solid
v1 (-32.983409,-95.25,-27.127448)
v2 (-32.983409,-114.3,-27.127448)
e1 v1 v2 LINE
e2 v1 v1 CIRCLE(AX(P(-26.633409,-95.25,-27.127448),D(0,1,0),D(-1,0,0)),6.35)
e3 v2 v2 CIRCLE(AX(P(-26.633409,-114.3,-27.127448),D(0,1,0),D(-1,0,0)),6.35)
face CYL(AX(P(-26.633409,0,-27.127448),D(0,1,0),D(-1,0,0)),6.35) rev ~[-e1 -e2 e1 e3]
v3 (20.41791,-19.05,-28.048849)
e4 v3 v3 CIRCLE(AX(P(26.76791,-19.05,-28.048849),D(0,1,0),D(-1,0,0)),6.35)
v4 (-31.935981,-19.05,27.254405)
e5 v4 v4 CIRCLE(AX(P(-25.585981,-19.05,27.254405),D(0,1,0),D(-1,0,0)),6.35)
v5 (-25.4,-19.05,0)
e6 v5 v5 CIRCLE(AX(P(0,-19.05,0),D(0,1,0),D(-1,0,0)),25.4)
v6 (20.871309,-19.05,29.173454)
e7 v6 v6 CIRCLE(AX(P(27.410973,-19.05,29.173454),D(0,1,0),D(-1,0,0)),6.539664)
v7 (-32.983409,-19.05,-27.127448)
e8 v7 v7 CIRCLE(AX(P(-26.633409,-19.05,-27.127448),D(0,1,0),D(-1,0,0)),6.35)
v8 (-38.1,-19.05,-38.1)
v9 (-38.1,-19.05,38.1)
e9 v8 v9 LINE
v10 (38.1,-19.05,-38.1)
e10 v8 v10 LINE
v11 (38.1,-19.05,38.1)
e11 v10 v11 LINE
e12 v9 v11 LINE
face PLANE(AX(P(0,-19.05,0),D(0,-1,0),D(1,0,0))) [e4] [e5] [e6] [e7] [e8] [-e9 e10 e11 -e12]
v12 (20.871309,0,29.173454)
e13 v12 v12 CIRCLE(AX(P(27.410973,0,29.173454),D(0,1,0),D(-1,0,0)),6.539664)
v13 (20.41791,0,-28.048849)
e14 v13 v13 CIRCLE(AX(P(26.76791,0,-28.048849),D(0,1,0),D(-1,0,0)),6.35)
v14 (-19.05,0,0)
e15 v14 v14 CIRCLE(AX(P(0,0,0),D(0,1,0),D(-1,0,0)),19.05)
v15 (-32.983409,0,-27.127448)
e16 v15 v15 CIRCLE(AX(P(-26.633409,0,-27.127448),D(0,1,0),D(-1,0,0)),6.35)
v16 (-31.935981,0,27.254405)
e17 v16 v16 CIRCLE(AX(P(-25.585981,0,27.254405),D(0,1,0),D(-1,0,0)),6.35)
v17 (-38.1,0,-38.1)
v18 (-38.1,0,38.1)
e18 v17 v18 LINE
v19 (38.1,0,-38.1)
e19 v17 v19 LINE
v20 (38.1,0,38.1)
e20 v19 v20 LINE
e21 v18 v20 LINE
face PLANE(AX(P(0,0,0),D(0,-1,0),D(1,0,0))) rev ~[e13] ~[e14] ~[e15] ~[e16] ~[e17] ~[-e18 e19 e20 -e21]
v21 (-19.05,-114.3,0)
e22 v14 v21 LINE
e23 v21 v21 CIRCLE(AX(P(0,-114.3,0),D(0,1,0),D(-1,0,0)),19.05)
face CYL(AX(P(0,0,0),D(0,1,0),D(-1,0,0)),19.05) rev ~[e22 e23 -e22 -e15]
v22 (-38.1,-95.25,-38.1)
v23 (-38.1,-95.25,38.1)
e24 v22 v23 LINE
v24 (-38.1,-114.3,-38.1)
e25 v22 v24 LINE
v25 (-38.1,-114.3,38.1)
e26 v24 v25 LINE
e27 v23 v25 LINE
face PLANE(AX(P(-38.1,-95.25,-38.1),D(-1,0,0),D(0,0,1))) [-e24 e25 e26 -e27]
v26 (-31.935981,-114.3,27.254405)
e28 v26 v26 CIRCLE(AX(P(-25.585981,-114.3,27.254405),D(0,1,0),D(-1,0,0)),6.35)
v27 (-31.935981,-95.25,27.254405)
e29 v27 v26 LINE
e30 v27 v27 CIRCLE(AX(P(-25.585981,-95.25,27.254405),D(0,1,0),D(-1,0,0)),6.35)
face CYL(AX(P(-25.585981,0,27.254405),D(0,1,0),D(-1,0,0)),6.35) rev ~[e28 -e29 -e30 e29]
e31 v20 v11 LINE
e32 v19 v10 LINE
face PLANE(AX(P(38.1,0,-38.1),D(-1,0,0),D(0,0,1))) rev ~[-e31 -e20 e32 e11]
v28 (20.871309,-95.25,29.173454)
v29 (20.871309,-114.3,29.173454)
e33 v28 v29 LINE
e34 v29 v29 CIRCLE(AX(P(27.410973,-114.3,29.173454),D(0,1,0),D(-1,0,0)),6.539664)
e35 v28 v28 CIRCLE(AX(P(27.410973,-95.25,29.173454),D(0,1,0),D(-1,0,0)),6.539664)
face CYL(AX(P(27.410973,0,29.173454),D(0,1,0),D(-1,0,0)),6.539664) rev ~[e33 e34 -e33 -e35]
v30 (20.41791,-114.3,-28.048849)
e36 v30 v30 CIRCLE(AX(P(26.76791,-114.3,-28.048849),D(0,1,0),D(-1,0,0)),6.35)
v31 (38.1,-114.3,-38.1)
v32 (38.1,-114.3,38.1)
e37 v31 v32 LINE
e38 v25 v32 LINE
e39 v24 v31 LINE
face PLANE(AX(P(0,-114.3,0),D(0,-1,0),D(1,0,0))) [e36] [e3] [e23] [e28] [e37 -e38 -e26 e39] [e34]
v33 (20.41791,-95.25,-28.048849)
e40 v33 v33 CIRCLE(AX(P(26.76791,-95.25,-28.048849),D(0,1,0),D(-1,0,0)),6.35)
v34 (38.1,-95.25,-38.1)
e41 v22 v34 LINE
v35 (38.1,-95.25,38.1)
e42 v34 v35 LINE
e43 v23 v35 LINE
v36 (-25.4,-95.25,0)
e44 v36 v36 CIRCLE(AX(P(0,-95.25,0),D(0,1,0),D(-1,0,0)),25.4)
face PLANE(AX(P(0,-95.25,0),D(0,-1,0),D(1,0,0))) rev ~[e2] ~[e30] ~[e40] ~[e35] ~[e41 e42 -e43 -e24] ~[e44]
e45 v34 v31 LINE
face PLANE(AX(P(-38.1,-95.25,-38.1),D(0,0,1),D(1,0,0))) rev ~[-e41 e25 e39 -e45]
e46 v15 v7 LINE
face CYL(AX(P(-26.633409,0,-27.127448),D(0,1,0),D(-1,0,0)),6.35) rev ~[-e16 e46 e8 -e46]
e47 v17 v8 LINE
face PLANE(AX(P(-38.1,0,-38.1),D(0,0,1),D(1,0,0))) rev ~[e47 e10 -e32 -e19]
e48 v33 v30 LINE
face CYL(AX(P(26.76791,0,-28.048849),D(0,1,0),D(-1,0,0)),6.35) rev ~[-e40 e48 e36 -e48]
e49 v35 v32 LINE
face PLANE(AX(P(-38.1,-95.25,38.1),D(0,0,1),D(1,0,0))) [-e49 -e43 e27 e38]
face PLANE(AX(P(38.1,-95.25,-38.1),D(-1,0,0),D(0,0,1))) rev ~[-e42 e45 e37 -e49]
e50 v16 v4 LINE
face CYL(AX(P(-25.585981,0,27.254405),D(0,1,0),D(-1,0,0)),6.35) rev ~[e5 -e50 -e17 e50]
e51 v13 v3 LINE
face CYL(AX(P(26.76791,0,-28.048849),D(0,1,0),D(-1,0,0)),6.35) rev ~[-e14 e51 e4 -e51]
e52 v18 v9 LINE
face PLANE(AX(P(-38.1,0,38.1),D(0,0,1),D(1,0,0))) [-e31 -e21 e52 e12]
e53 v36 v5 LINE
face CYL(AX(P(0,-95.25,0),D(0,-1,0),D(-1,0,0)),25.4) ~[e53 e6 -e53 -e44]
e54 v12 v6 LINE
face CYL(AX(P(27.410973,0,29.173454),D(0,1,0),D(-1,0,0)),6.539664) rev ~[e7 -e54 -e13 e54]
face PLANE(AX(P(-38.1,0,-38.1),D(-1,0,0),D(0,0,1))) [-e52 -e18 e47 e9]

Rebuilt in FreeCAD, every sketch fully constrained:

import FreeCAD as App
import Part
import Sketcher
from FreeCAD import Vector
Q = App.Units.Quantity


def add_polygon(sketch, points):
    """Adds a closed chain of lines whose ends are joined by coincident constraints."""
    first, n = sketch.GeometryCount, len(points)
    for a, b in zip(points, points[1:] + points[:1]):
        sketch.addGeometry(Part.LineSegment(App.Vector(*a, 0), App.Vector(*b, 0)), False)
    for i in range(n):
        sketch.addConstraint(Sketcher.Constraint("Coincident", first + i, 2, first + (i + 1) % n, 1))

doc = App.newDocument("Part")
params = doc.addObject("Spreadsheet::Sheet", "Params")
for row, (alias, value) in enumerate([
    ("sketch1_width", "3 in"),
    ("pad1_length", "0.75 in"),
    ("sketch2_diameter", "1.5 in"),
    ("pad2_length", "1 in"),
    ("sketch3_diameter", "1.5 in"),
    ("pad3_length", "2 in"),
    ("sketch4_width", "3 in"),
    ("pad4_length", "0.75 in"),
    ("sketch5_diameter", "2 in"),
    ("pad5_length", "3 in"),
    ("sketch6_diameter", "1.5 in"),
    ("pocket1_length", "4.5 in"),
    ("sketch7_diameter", "0.5 in"),
    ("pocket2_length", "4.5 in"),
    ("sketch8_diameter", "0.5 in"),
    ("pocket3_length", "5 in"),
], start=1):
    params.set(f"A{row}", alias)
    params.set(f"B{row}", "=" + value)
    params.setAlias(f"B{row}", alias)

body = doc.addObject("PartDesign::Body", "Body")

# Sketch on XZ plane
sketch1 = doc.addObject("Sketcher::SketchObject", "Sketch")
body.addObject(sketch1)
sketch1.AttachmentSupport = (doc.XZ_Plane, [""])
sketch1.MapMode = "FlatFace"
add_polygon(sketch1, [(-38.1, 38.1), (-38.1, -38.1), (38.1, -38.1), (38.1, 38.1)])  # lines 0-3
sketch1.addConstraint([
    Sketcher.Constraint("Vertical", 0),
    Sketcher.Constraint("Horizontal", 1),
    Sketcher.Constraint("Vertical", 2),
    Sketcher.Constraint("Horizontal", 3),
    Sketcher.Constraint("Symmetric", 0, 2, 2, 2, -1, 1),
    Sketcher.Constraint("Equal", 3, 0),
    Sketcher.Constraint("DistanceX", 1, 1, 1, 2, Q("3 in")),
])
sketch1.setExpression("Constraints[10]", "Params.sketch1_width")
pad1 = doc.addObject("PartDesign::Pad", "Pad")
body.addObject(pad1)
pad1.Profile = sketch1
pad1.setExpression("Length", "Params.pad1_length")

# Sketch on XZ plane
sketch2 = doc.addObject("Sketcher::SketchObject", "Sketch001")
body.addObject(sketch2)
sketch2.AttachmentSupport = (doc.XZ_Plane, [""])
sketch2.MapMode = "FlatFace"
sketch2.AttachmentOffset = App.Placement(Vector(0, 0, 0.75 * 25.4), App.Rotation())
sketch2.addGeometry(Part.Circle(Vector(0, 0, 0), Vector(0, 0, 1), 19.05), False)
sketch2.addConstraint([
    Sketcher.Constraint("Coincident", 0, 3, -1, 1),
    Sketcher.Constraint("Diameter", 0, Q("1.5 in")),
])
sketch2.setExpression("Constraints[1]", "Params.sketch2_diameter")
pad2 = doc.addObject("PartDesign::Pad", "Pad001")
body.addObject(pad2)
pad2.Profile = sketch2
pad2.setExpression("Length", "Params.pad2_length")

# Sketch on XZ plane
sketch3 = doc.addObject("Sketcher::SketchObject", "Sketch002")
body.addObject(sketch3)
sketch3.AttachmentSupport = (doc.XZ_Plane, [""])
sketch3.MapMode = "FlatFace"
sketch3.AttachmentOffset = App.Placement(Vector(0, 0, 1.75 * 25.4), App.Rotation())
sketch3.addGeometry(Part.Circle(Vector(0, 0, 0), Vector(0, 0, 1), 19.05), False)
sketch3.addConstraint([
    Sketcher.Constraint("Coincident", 0, 3, -1, 1),
    Sketcher.Constraint("Diameter", 0, Q("1.5 in")),
])
sketch3.setExpression("Constraints[1]", "Params.sketch3_diameter")
pad3 = doc.addObject("PartDesign::Pad", "Pad002")
body.addObject(pad3)
pad3.Profile = sketch3
pad3.setExpression("Length", "Params.pad3_length")

# Sketch on XZ plane
sketch4 = doc.addObject("Sketcher::SketchObject", "Sketch003")
body.addObject(sketch4)
sketch4.AttachmentSupport = (doc.XZ_Plane, [""])
sketch4.MapMode = "FlatFace"
sketch4.AttachmentOffset = App.Placement(Vector(0, 0, 3.75 * 25.4), App.Rotation())
add_polygon(sketch4, [(-38.1, 38.1), (-38.1, -38.1), (38.1, -38.1), (38.1, 38.1)])  # lines 0-3
sketch4.addConstraint([
    Sketcher.Constraint("Vertical", 0),
    Sketcher.Constraint("Horizontal", 1),
    Sketcher.Constraint("Vertical", 2),
    Sketcher.Constraint("Horizontal", 3),
    Sketcher.Constraint("Symmetric", 0, 2, 2, 2, -1, 1),
    Sketcher.Constraint("Equal", 3, 0),
    Sketcher.Constraint("DistanceX", 1, 1, 1, 2, Q("3 in")),
])
sketch4.setExpression("Constraints[10]", "Params.sketch4_width")
pad4 = doc.addObject("PartDesign::Pad", "Pad003")
body.addObject(pad4)
pad4.Profile = sketch4
pad4.setExpression("Length", "Params.pad4_length")

# Sketch on XZ plane
sketch5 = doc.addObject("Sketcher::SketchObject", "Sketch004")
body.addObject(sketch5)
sketch5.AttachmentSupport = (doc.XZ_Plane, [""])
sketch5.MapMode = "FlatFace"
sketch5.AttachmentOffset = App.Placement(Vector(0, 0, 3.75 * 25.4), App.Rotation())
sketch5.addGeometry(Part.Circle(Vector(0, 0, 0), Vector(0, 0, 1), 25.4), False)
sketch5.addConstraint([
    Sketcher.Constraint("Coincident", 0, 3, -1, 1),
    Sketcher.Constraint("Diameter", 0, Q("2 in")),
])
sketch5.setExpression("Constraints[1]", "Params.sketch5_diameter")
pad5 = doc.addObject("PartDesign::Pad", "Pad004")
body.addObject(pad5)
pad5.Profile = sketch5
pad5.setExpression("Length", "Params.pad5_length")
pad5.Reversed = True

# Sketch on XZ plane
sketch6 = doc.addObject("Sketcher::SketchObject", "Sketch005")
body.addObject(sketch6)
sketch6.AttachmentSupport = (doc.XZ_Plane, [""])
sketch6.MapMode = "FlatFace"
sketch6.addGeometry(Part.Circle(Vector(0, 0, 0), Vector(0, 0, 1), 19.05), False)
sketch6.addConstraint([
    Sketcher.Constraint("Coincident", 0, 3, -1, 1),
    Sketcher.Constraint("Diameter", 0, Q("1.5 in")),
])
sketch6.setExpression("Constraints[1]", "Params.sketch6_diameter")
pocket1 = doc.addObject("PartDesign::Pocket", "Pocket")
body.addObject(pocket1)
pocket1.Profile = sketch6
pocket1.setExpression("Length", "Params.pocket1_length")
pocket1.Reversed = True

# Sketch on XZ plane
sketch7 = doc.addObject("Sketcher::SketchObject", "Sketch006")
body.addObject(sketch7)
sketch7.AttachmentSupport = (doc.XZ_Plane, [""])
sketch7.MapMode = "FlatFace"
sketch7.addGeometry(Part.Circle(Vector(-25.585981, 27.254404, 0), Vector(0, 0, 1), 6.35), False)
sketch7.addConstraint([
    Sketcher.Constraint("Diameter", 0, Q("0.5 in")),
    Sketcher.Constraint("DistanceX", 0, 3, -1, 1, Q("25.585981 mm")),
    Sketcher.Constraint("DistanceY", -1, 1, 0, 3, Q("27.254404 mm")),
])
sketch7.setExpression("Constraints[0]", "Params.sketch7_diameter")
pocket2 = doc.addObject("PartDesign::Pocket", "Pocket001")
body.addObject(pocket2)
pocket2.Profile = sketch7
pocket2.setExpression("Length", "Params.pocket2_length")
pocket2.Reversed = True

# Sketch on XZ plane
sketch8 = doc.addObject("Sketcher::SketchObject", "Sketch007")
body.addObject(sketch8)
sketch8.AttachmentSupport = (doc.XZ_Plane, [""])
sketch8.MapMode = "FlatFace"
sketch8.addGeometry([
    Part.Circle(Vector(27.410973, 29.173454, 0), Vector(0, 0, 1), 6.539664),
    Part.Circle(Vector(26.76791, -28.048849, 0), Vector(0, 0, 1), 6.35),
    Part.Circle(Vector(-26.633409, -27.127448, 0), Vector(0, 0, 1), 6.35),
], False)
sketch8.addConstraint([
    Sketcher.Constraint("Equal", 1, 2),
    Sketcher.Constraint("Diameter", 1, Q("0.5 in")),
    Sketcher.Constraint("Diameter", 0, Q("13.079328 mm")),
    Sketcher.Constraint("DistanceY", 1, 3, 2, 3, Q("0.921401 mm")),
    Sketcher.Constraint("DistanceX", -1, 1, 1, 3, Q("26.76791 mm")),
    Sketcher.Constraint("DistanceY", 1, 3, -1, 1, Q("28.048849 mm")),
    Sketcher.Constraint("DistanceX", 2, 3, -1, 1, Q("26.633409 mm")),
    Sketcher.Constraint("DistanceX", 2, 3, 0, 3, Q("54.044382 mm")),
    Sketcher.Constraint("DistanceY", -1, 1, 0, 3, Q("29.173454 mm")),
])
sketch8.setExpression("Constraints[1]", "Params.sketch8_diameter")
pocket3 = doc.addObject("PartDesign::Pocket", "Pocket002")
body.addObject(pocket3)
pocket3.Profile = sketch8
pocket3.setExpression("Length", "Params.pocket3_length")
pocket3.Reversed = True

doc.recompute()
